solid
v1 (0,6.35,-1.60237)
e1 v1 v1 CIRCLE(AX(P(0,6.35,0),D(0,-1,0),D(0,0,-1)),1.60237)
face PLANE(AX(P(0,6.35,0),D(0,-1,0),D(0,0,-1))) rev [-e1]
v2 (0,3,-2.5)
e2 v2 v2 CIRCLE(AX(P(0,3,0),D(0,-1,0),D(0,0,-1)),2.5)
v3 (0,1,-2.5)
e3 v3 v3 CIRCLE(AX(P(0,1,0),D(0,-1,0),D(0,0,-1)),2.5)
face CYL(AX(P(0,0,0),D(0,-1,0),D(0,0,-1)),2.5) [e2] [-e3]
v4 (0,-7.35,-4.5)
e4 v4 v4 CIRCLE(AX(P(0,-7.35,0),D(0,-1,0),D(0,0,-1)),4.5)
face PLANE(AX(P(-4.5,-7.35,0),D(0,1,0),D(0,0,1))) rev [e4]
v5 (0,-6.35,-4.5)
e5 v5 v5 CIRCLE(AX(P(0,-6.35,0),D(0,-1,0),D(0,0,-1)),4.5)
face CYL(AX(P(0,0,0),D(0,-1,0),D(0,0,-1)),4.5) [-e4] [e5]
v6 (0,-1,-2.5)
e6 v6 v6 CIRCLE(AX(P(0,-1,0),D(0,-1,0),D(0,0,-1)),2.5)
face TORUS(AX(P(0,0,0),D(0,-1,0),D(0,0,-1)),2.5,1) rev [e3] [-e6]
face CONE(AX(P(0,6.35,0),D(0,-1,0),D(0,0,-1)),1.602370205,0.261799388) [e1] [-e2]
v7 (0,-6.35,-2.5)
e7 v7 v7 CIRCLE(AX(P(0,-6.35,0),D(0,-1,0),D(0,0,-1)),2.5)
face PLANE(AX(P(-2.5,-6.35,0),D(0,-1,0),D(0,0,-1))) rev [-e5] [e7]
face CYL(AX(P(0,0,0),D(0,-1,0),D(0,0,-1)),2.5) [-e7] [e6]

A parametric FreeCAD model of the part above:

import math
import FreeCAD as App
import Part
import Sketcher
Q = App.Units.Quantity

doc = App.newDocument("Part")
body = doc.addObject("PartDesign::Body", "Body")

# Sketch on XY plane
sketch1 = doc.addObject("Sketcher::SketchObject", "Sketch")
body.addObject(sketch1)
sketch1.AttachmentSupport = (doc.XY_Plane, [""])
sketch1.MapMode = "FlatFace"
sketch1.addGeometry([
    Part.LineSegment(App.Vector(0, 6.3, 0), App.Vector(-1.6, 6.3, 0)),  # 0
    Part.LineSegment(App.Vector(-1.6, 6.3, 0), App.Vector(-2.5, 3, 0)),  # 1
    Part.LineSegment(App.Vector(-2.5, 3, 0), App.Vector(-2.5, 1, 0)),  # 2
    Part.ArcOfCircle(Part.Circle(App.Vector(-2.5, 0, 0), App.Vector(0, 0, 1), 1), math.radians(-90), math.radians(90)),  # 3
    Part.LineSegment(App.Vector(-2.5, -1, 0), App.Vector(-2.5, -6.3, 0)),  # 4
    Part.LineSegment(App.Vector(-2.5, -6.3, 0), App.Vector(-4.5, -6.3, 0)),  # 5
    Part.LineSegment(App.Vector(-4.5, -6.3, 0), App.Vector(-4.5, -7.3, 0)),  # 6
    Part.LineSegment(App.Vector(-4.5, -7.3, 0), App.Vector(0, -7.3, 0)),  # 7
    Part.LineSegment(App.Vector(0, -7.3, 0), App.Vector(0, 6.3, 0)),  # 8
], False)
sketch1.addConstraint([
    Sketcher.Constraint("Coincident", 0, 2, 1, 1),
    Sketcher.Constraint("Coincident", 1, 2, 2, 1),
    Sketcher.Constraint("Coincident", 2, 2, 3, 2),
    Sketcher.Constraint("Coincident", 3, 1, 4, 1),
    Sketcher.Constraint("Coincident", 4, 2, 5, 1),
    Sketcher.Constraint("Coincident", 5, 2, 6, 1),
    Sketcher.Constraint("Coincident", 6, 2, 7, 1),
    Sketcher.Constraint("Coincident", 7, 2, 8, 1),
    Sketcher.Constraint("Coincident", 8, 2, 0, 1),
    Sketcher.Constraint("Horizontal", 0),
    Sketcher.Constraint("Vertical", 2),
    Sketcher.Constraint("Vertical", 4),
    Sketcher.Constraint("Horizontal", 5),
    Sketcher.Constraint("Vertical", 6),
    Sketcher.Constraint("Horizontal", 7),
    Sketcher.Constraint("Vertical", 8),
    Sketcher.Constraint("Symmetric", 2, 2, 3, 1, -1),
    Sketcher.Constraint("PointOnObject", 7, 2, -2),
    Sketcher.Constraint("Vertical", 3, 3, 1, 2),
    Sketcher.Constraint("Equal", 5, 2),
    Sketcher.Constraint("Radius", 3, 1.0),
    Sketcher.Constraint("DistanceX", 5, 2, 5, 1, 2.0),
    Sketcher.Constraint("DistanceY", 6, 2, 6, 1, 1.0),
    Sketcher.Constraint("Angle", 1, Q("-105 deg")),
    Sketcher.Constraint("DistanceX", 7, 1, 7, 2, 4.5),
    Sketcher.Constraint("DistanceY", 8, 1, 8, 2, 13.7),
    Sketcher.Constraint("DistanceY", 4, 2, 4, 1, 5.35),
])
revolution = doc.addObject("PartDesign::Revolution", "Revolution")
body.addObject(revolution)
revolution.Profile = sketch1
revolution.ReferenceAxis = (sketch1, ["V_Axis"])
revolution.Angle = 360

doc.recompute()
